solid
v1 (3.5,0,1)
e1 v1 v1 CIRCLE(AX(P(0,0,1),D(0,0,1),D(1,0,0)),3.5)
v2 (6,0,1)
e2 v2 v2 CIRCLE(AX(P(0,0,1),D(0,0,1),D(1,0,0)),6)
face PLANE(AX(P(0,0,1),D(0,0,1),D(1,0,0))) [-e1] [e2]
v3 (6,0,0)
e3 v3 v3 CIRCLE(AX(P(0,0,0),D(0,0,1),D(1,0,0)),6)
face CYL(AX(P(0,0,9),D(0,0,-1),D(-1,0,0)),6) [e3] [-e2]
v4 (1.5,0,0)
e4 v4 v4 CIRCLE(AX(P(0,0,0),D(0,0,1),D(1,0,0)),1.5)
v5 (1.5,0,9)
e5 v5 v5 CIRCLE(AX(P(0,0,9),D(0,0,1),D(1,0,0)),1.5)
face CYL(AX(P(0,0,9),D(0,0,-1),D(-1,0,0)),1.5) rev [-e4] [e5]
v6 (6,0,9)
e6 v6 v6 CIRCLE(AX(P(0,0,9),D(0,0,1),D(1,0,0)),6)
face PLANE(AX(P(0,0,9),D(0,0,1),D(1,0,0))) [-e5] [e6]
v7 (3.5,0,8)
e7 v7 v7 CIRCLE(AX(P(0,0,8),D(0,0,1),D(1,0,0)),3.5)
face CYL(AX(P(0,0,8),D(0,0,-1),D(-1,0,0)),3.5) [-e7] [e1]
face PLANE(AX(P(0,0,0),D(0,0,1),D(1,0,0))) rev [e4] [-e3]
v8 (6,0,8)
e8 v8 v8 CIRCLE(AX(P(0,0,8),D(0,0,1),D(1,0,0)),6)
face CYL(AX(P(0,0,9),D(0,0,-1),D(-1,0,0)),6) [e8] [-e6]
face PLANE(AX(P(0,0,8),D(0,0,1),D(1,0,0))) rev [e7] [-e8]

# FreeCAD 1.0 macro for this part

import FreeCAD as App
import Part
import Sketcher
from FreeCAD import Vector

doc = App.newDocument("Part")
body = doc.addObject("PartDesign::Body", "Body")

sketch1 = body.newObject("Sketcher::SketchObject", "Sketch")
sketch1.AttachmentSupport = (doc.getObject("XY_Plane"), [""])
sketch1.MapMode = "FlatFace"
sketch1.addGeometry([
    Part.Circle(Vector(0, 0, 0), Vector(0, 0, 1), 6),
    Part.Circle(Vector(0, 0, 0), Vector(0, 0, 1), 1.5),
], False)
sketch1.addConstraint([
    Sketcher.Constraint("Coincident", 0, 3, -1, 1),
    Sketcher.Constraint("Coincident", 1, 3, -1, 1),
    Sketcher.Constraint("Diameter", 0, 12.0),
    Sketcher.Constraint("Diameter", 1, 3.0),
])
pad1 = body.newObject("PartDesign::Pad", "Pad")
pad1.Profile = sketch1
pad1.Length = 9

sketch2 = body.newObject("Sketcher::SketchObject", "Sketch001")
sketch2.AttachmentSupport = (doc.getObject("XY_Plane"), [""])
sketch2.MapMode = "FlatFace"
sketch2.AttachmentOffset = App.Placement(Vector(0, 0, 1), App.Rotation())
sketch2.addGeometry([
    Part.Circle(Vector(0, 0, 0), Vector(0, 0, 1), 13.5),
    Part.Circle(Vector(0, 0, 0), Vector(0, 0, 1), 3.5),
], False)
sketch2.addConstraint([
    Sketcher.Constraint("Coincident", 0, 3, -1, 1),
    Sketcher.Constraint("Coincident", 1, 3, -1, 1),
    Sketcher.Constraint("Diameter", 0, 27.0),
    Sketcher.Constraint("Diameter", 1, 7.0),
])
pocket1 = body.newObject("PartDesign::Pocket", "Pocket")
pocket1.Profile = sketch2
pocket1.Length = 7
pocket1.Reversed = True

doc.recompute()
